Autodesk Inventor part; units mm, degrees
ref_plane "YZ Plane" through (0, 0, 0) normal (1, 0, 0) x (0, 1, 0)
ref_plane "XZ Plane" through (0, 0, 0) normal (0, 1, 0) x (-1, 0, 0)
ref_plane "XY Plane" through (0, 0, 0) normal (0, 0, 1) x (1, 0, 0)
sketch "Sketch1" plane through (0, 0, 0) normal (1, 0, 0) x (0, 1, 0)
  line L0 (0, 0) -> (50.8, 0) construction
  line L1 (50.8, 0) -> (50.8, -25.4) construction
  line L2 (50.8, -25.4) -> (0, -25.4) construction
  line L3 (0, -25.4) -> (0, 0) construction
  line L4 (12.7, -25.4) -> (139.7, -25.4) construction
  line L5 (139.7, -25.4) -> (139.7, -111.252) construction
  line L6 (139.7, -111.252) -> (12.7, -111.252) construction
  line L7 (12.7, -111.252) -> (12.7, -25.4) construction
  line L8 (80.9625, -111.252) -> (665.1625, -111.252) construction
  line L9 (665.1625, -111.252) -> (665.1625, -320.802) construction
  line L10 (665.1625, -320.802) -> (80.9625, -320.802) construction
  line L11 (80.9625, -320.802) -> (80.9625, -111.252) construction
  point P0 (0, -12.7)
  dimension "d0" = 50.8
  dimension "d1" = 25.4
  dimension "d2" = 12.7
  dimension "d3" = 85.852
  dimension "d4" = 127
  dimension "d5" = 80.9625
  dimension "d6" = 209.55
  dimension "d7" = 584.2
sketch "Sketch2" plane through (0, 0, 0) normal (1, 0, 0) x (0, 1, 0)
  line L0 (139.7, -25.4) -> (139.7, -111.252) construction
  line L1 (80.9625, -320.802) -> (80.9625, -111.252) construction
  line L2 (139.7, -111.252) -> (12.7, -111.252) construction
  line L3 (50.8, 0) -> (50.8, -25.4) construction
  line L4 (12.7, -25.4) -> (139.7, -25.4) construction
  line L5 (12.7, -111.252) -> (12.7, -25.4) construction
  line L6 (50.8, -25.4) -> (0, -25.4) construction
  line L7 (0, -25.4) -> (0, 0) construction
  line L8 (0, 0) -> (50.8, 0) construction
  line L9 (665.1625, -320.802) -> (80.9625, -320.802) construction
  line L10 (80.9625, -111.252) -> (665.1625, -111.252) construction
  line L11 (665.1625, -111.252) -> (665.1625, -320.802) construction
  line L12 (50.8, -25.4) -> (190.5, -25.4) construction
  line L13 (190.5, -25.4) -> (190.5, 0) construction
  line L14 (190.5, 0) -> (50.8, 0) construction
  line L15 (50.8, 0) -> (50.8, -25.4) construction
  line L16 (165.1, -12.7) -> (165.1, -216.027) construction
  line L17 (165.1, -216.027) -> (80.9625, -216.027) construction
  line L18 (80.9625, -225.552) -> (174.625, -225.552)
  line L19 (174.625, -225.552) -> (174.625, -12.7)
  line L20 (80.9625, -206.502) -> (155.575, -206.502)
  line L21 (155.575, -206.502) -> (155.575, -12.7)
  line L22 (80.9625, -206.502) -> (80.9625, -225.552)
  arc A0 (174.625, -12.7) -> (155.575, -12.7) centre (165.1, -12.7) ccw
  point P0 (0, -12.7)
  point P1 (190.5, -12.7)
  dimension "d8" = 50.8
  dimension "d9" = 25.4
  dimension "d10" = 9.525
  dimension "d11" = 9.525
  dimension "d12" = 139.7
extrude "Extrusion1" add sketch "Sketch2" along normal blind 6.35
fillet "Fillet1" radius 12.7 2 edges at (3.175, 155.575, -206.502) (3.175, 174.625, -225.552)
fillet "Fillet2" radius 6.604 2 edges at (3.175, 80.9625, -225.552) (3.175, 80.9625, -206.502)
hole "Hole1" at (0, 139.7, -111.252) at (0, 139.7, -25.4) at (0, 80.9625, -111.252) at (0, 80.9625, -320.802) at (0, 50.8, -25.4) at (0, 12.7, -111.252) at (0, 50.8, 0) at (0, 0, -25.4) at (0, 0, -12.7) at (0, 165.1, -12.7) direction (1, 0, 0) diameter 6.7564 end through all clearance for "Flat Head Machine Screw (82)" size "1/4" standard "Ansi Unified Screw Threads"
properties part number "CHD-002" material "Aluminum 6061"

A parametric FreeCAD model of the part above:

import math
import FreeCAD as App
import Part
import Sketcher
Q = App.Units.Quantity


def edges_at(feature, points):
    """Names of the edges that pass closest to the given points."""
    edges = feature.Shape.Edges
    near = lambda p: min(range(len(edges)), key=lambda i: edges[i].distToShape(Part.Vertex(*p))[0])
    return sorted({f"Edge{near(p) + 1}" for p in points})

doc = App.newDocument("Part")
body = doc.addObject("PartDesign::Body", "Body")

# Sketch on YZ plane
sketch1 = body.newObject("Sketcher::SketchObject", "Sketch")
sketch1.AttachmentSupport = (doc.getObject("YZ_Plane"), [""])
sketch1.MapMode = "FlatFace"
sketch1.addGeometry([
    Part.LineSegment(App.Vector(81, -207, 0), App.Vector(81, -226, 0)),  # 0
    Part.LineSegment(App.Vector(81, -226, 0), App.Vector(175, -226, 0)),  # 1
    Part.LineSegment(App.Vector(175, -226, 0), App.Vector(175, -13, 0)),  # 2
    Part.ArcOfCircle(Part.Circle(App.Vector(165, -13, 0), App.Vector(0, 0, 1), 10), math.radians(0), math.radians(180)),  # 3
    Part.LineSegment(App.Vector(156, -13, 0), App.Vector(156, -207, 0)),  # 4
    Part.LineSegment(App.Vector(156, -207, 0), App.Vector(81, -207, 0)),  # 5
], False)
sketch1.addConstraint([
    Sketcher.Constraint("Coincident", 0, 2, 1, 1),
    Sketcher.Constraint("Coincident", 1, 2, 2, 1),
    Sketcher.Constraint("Tangent", 2, 2, 3, 1),
    Sketcher.Constraint("Tangent", 3, 2, 4, 1),
    Sketcher.Constraint("Coincident", 4, 2, 5, 1),
    Sketcher.Constraint("Coincident", 5, 2, 0, 1),
    Sketcher.Constraint("Vertical", 0),
    Sketcher.Constraint("Horizontal", 1),
    Sketcher.Constraint("Vertical", 2),
    Sketcher.Constraint("Vertical", 4),
    Sketcher.Constraint("Horizontal", 5),
    Sketcher.Constraint("Radius", 3, Q("0.375 in")),
    Sketcher.Constraint("DistanceY", 0, 2, 0, 1, Q("0.75 in")),
    Sketcher.Constraint("DistanceY", 2, 1, 2, 2, Q("8.38 in")),
    Sketcher.Constraint("DistanceX", -1, 1, 3, 3, Q("6.5 in")),
    Sketcher.Constraint("DistanceY", 3, 3, -1, 1, Q("0.5 in")),
    Sketcher.Constraint("DistanceX", 1, 1, 1, 2, Q("3.6875 in")),
])
pad1 = body.newObject("PartDesign::Pad", "Pad")
pad1.Profile = sketch1
pad1.Length = Q("0.25 in")
doc.recompute()

fillet = body.newObject("PartDesign::Fillet", "Fillet")
fillet.Base = (pad1, edges_at(pad1, [(3.175, 155.575, -206.502), (3.175, 174.625, -225.552)]))
fillet.Radius = Q("0.5 in")
doc.recompute()

fillet2 = body.newObject("PartDesign::Fillet", "Fillet001")
fillet2.Base = (fillet, edges_at(fillet, [(3.175, 80.963, -225.552), (3.175, 80.963, -206.502)]))
fillet2.Radius = Q("0.26 in")

# Sketch on YZ plane
sketch2 = body.newObject("Sketcher::SketchObject", "Sketch001")
sketch2.AttachmentSupport = (doc.getObject("YZ_Plane"), [""])
sketch2.MapMode = "FlatFace"
sketch2.addGeometry([
    Part.Circle(App.Vector(139.7, -111.3, 0), App.Vector(0, 0, 1), 3.4),  # 0
    Part.Circle(App.Vector(139.7, -25.4, 0), App.Vector(0, 0, 1), 3.4),  # 1
    Part.Circle(App.Vector(81, -111.3, 0), App.Vector(0, 0, 1), 3.4),  # 2
    Part.Circle(App.Vector(81, -320.8, 0), App.Vector(0, 0, 1), 3.4),  # 3
    Part.Circle(App.Vector(50.8, -25.4, 0), App.Vector(0, 0, 1), 3.4),  # 4
    Part.Circle(App.Vector(12.7, -111.3, 0), App.Vector(0, 0, 1), 3.4),  # 5
    Part.Circle(App.Vector(50.8, 0, 0), App.Vector(0, 0, 1), 3.4),  # 6
    Part.Circle(App.Vector(0, -25.4, 0), App.Vector(0, 0, 1), 3.4),  # 7
    Part.Circle(App.Vector(0, -12.7, 0), App.Vector(0, 0, 1), 3.4),  # 8
    Part.Circle(App.Vector(165.1, -12.7, 0), App.Vector(0, 0, 1), 3.4),  # 9
], False)
sketch2.addConstraint([
    Sketcher.Constraint("Equal", 0, 1),
    Sketcher.Constraint("Equal", 1, 2),
    Sketcher.Constraint("Equal", 2, 3),
    Sketcher.Constraint("Equal", 3, 4),
    Sketcher.Constraint("Equal", 4, 5),
    Sketcher.Constraint("Equal", 5, 6),
    Sketcher.Constraint("Equal", 6, 7),
    Sketcher.Constraint("Equal", 7, 8),
    Sketcher.Constraint("Equal", 8, 9),
    Sketcher.Constraint("PointOnObject", 6, 3, -1),
    Sketcher.Constraint("PointOnObject", 7, 3, -2),
    Sketcher.Constraint("PointOnObject", 8, 3, -2),
    Sketcher.Constraint("Horizontal", 0, 3, 2, 3),
    Sketcher.Constraint("Horizontal", 1, 3, 4, 3),
    Sketcher.Constraint("Horizontal", 2, 3, 5, 3),
    Sketcher.Constraint("Horizontal", 4, 3, 7, 3),
    Sketcher.Constraint("Horizontal", 8, 3, 9, 3),
    Sketcher.Constraint("Vertical", 0, 3, 1, 3),
    Sketcher.Constraint("Vertical", 2, 3, 3, 3),
    Sketcher.Constraint("Vertical", 4, 3, 6, 3),
    Sketcher.Constraint("Diameter", 0, Q("0.266 in")),
    Sketcher.Constraint("DistanceY", 1, 3, -1, 1, Q("1 in")),
    Sketcher.Constraint("DistanceX", -1, 1, 4, 3, Q("2 in")),
    Sketcher.Constraint("DistanceX", 5, 3, 0, 3, Q("5 in")),
    Sketcher.Constraint("DistanceX", 1, 3, 9, 3, Q("1 in")),
    Sketcher.Constraint("DistanceX", -1, 1, 0, 3, Q("5.5 in")),
    Sketcher.Constraint("DistanceY", 8, 3, -1, 1, Q("0.5 in")),
    Sketcher.Constraint("DistanceY", 0, 3, -1, 1, Q("4.38 in")),
    Sketcher.Constraint("DistanceY", 3, 3, -1, 1, Q("12.63 in")),
    Sketcher.Constraint("DistanceX", -1, 1, 2, 3, Q("3.1875 in")),
])
doc.recompute()
hole = body.newObject("PartDesign::Hole", "Hole")
hole.Profile = sketch2
hole.ThreadType = "None"
hole.Diameter = Q("0.266 in")
hole.DepthType = "ThroughAll"
hole.Reversed = True

doc.recompute()
